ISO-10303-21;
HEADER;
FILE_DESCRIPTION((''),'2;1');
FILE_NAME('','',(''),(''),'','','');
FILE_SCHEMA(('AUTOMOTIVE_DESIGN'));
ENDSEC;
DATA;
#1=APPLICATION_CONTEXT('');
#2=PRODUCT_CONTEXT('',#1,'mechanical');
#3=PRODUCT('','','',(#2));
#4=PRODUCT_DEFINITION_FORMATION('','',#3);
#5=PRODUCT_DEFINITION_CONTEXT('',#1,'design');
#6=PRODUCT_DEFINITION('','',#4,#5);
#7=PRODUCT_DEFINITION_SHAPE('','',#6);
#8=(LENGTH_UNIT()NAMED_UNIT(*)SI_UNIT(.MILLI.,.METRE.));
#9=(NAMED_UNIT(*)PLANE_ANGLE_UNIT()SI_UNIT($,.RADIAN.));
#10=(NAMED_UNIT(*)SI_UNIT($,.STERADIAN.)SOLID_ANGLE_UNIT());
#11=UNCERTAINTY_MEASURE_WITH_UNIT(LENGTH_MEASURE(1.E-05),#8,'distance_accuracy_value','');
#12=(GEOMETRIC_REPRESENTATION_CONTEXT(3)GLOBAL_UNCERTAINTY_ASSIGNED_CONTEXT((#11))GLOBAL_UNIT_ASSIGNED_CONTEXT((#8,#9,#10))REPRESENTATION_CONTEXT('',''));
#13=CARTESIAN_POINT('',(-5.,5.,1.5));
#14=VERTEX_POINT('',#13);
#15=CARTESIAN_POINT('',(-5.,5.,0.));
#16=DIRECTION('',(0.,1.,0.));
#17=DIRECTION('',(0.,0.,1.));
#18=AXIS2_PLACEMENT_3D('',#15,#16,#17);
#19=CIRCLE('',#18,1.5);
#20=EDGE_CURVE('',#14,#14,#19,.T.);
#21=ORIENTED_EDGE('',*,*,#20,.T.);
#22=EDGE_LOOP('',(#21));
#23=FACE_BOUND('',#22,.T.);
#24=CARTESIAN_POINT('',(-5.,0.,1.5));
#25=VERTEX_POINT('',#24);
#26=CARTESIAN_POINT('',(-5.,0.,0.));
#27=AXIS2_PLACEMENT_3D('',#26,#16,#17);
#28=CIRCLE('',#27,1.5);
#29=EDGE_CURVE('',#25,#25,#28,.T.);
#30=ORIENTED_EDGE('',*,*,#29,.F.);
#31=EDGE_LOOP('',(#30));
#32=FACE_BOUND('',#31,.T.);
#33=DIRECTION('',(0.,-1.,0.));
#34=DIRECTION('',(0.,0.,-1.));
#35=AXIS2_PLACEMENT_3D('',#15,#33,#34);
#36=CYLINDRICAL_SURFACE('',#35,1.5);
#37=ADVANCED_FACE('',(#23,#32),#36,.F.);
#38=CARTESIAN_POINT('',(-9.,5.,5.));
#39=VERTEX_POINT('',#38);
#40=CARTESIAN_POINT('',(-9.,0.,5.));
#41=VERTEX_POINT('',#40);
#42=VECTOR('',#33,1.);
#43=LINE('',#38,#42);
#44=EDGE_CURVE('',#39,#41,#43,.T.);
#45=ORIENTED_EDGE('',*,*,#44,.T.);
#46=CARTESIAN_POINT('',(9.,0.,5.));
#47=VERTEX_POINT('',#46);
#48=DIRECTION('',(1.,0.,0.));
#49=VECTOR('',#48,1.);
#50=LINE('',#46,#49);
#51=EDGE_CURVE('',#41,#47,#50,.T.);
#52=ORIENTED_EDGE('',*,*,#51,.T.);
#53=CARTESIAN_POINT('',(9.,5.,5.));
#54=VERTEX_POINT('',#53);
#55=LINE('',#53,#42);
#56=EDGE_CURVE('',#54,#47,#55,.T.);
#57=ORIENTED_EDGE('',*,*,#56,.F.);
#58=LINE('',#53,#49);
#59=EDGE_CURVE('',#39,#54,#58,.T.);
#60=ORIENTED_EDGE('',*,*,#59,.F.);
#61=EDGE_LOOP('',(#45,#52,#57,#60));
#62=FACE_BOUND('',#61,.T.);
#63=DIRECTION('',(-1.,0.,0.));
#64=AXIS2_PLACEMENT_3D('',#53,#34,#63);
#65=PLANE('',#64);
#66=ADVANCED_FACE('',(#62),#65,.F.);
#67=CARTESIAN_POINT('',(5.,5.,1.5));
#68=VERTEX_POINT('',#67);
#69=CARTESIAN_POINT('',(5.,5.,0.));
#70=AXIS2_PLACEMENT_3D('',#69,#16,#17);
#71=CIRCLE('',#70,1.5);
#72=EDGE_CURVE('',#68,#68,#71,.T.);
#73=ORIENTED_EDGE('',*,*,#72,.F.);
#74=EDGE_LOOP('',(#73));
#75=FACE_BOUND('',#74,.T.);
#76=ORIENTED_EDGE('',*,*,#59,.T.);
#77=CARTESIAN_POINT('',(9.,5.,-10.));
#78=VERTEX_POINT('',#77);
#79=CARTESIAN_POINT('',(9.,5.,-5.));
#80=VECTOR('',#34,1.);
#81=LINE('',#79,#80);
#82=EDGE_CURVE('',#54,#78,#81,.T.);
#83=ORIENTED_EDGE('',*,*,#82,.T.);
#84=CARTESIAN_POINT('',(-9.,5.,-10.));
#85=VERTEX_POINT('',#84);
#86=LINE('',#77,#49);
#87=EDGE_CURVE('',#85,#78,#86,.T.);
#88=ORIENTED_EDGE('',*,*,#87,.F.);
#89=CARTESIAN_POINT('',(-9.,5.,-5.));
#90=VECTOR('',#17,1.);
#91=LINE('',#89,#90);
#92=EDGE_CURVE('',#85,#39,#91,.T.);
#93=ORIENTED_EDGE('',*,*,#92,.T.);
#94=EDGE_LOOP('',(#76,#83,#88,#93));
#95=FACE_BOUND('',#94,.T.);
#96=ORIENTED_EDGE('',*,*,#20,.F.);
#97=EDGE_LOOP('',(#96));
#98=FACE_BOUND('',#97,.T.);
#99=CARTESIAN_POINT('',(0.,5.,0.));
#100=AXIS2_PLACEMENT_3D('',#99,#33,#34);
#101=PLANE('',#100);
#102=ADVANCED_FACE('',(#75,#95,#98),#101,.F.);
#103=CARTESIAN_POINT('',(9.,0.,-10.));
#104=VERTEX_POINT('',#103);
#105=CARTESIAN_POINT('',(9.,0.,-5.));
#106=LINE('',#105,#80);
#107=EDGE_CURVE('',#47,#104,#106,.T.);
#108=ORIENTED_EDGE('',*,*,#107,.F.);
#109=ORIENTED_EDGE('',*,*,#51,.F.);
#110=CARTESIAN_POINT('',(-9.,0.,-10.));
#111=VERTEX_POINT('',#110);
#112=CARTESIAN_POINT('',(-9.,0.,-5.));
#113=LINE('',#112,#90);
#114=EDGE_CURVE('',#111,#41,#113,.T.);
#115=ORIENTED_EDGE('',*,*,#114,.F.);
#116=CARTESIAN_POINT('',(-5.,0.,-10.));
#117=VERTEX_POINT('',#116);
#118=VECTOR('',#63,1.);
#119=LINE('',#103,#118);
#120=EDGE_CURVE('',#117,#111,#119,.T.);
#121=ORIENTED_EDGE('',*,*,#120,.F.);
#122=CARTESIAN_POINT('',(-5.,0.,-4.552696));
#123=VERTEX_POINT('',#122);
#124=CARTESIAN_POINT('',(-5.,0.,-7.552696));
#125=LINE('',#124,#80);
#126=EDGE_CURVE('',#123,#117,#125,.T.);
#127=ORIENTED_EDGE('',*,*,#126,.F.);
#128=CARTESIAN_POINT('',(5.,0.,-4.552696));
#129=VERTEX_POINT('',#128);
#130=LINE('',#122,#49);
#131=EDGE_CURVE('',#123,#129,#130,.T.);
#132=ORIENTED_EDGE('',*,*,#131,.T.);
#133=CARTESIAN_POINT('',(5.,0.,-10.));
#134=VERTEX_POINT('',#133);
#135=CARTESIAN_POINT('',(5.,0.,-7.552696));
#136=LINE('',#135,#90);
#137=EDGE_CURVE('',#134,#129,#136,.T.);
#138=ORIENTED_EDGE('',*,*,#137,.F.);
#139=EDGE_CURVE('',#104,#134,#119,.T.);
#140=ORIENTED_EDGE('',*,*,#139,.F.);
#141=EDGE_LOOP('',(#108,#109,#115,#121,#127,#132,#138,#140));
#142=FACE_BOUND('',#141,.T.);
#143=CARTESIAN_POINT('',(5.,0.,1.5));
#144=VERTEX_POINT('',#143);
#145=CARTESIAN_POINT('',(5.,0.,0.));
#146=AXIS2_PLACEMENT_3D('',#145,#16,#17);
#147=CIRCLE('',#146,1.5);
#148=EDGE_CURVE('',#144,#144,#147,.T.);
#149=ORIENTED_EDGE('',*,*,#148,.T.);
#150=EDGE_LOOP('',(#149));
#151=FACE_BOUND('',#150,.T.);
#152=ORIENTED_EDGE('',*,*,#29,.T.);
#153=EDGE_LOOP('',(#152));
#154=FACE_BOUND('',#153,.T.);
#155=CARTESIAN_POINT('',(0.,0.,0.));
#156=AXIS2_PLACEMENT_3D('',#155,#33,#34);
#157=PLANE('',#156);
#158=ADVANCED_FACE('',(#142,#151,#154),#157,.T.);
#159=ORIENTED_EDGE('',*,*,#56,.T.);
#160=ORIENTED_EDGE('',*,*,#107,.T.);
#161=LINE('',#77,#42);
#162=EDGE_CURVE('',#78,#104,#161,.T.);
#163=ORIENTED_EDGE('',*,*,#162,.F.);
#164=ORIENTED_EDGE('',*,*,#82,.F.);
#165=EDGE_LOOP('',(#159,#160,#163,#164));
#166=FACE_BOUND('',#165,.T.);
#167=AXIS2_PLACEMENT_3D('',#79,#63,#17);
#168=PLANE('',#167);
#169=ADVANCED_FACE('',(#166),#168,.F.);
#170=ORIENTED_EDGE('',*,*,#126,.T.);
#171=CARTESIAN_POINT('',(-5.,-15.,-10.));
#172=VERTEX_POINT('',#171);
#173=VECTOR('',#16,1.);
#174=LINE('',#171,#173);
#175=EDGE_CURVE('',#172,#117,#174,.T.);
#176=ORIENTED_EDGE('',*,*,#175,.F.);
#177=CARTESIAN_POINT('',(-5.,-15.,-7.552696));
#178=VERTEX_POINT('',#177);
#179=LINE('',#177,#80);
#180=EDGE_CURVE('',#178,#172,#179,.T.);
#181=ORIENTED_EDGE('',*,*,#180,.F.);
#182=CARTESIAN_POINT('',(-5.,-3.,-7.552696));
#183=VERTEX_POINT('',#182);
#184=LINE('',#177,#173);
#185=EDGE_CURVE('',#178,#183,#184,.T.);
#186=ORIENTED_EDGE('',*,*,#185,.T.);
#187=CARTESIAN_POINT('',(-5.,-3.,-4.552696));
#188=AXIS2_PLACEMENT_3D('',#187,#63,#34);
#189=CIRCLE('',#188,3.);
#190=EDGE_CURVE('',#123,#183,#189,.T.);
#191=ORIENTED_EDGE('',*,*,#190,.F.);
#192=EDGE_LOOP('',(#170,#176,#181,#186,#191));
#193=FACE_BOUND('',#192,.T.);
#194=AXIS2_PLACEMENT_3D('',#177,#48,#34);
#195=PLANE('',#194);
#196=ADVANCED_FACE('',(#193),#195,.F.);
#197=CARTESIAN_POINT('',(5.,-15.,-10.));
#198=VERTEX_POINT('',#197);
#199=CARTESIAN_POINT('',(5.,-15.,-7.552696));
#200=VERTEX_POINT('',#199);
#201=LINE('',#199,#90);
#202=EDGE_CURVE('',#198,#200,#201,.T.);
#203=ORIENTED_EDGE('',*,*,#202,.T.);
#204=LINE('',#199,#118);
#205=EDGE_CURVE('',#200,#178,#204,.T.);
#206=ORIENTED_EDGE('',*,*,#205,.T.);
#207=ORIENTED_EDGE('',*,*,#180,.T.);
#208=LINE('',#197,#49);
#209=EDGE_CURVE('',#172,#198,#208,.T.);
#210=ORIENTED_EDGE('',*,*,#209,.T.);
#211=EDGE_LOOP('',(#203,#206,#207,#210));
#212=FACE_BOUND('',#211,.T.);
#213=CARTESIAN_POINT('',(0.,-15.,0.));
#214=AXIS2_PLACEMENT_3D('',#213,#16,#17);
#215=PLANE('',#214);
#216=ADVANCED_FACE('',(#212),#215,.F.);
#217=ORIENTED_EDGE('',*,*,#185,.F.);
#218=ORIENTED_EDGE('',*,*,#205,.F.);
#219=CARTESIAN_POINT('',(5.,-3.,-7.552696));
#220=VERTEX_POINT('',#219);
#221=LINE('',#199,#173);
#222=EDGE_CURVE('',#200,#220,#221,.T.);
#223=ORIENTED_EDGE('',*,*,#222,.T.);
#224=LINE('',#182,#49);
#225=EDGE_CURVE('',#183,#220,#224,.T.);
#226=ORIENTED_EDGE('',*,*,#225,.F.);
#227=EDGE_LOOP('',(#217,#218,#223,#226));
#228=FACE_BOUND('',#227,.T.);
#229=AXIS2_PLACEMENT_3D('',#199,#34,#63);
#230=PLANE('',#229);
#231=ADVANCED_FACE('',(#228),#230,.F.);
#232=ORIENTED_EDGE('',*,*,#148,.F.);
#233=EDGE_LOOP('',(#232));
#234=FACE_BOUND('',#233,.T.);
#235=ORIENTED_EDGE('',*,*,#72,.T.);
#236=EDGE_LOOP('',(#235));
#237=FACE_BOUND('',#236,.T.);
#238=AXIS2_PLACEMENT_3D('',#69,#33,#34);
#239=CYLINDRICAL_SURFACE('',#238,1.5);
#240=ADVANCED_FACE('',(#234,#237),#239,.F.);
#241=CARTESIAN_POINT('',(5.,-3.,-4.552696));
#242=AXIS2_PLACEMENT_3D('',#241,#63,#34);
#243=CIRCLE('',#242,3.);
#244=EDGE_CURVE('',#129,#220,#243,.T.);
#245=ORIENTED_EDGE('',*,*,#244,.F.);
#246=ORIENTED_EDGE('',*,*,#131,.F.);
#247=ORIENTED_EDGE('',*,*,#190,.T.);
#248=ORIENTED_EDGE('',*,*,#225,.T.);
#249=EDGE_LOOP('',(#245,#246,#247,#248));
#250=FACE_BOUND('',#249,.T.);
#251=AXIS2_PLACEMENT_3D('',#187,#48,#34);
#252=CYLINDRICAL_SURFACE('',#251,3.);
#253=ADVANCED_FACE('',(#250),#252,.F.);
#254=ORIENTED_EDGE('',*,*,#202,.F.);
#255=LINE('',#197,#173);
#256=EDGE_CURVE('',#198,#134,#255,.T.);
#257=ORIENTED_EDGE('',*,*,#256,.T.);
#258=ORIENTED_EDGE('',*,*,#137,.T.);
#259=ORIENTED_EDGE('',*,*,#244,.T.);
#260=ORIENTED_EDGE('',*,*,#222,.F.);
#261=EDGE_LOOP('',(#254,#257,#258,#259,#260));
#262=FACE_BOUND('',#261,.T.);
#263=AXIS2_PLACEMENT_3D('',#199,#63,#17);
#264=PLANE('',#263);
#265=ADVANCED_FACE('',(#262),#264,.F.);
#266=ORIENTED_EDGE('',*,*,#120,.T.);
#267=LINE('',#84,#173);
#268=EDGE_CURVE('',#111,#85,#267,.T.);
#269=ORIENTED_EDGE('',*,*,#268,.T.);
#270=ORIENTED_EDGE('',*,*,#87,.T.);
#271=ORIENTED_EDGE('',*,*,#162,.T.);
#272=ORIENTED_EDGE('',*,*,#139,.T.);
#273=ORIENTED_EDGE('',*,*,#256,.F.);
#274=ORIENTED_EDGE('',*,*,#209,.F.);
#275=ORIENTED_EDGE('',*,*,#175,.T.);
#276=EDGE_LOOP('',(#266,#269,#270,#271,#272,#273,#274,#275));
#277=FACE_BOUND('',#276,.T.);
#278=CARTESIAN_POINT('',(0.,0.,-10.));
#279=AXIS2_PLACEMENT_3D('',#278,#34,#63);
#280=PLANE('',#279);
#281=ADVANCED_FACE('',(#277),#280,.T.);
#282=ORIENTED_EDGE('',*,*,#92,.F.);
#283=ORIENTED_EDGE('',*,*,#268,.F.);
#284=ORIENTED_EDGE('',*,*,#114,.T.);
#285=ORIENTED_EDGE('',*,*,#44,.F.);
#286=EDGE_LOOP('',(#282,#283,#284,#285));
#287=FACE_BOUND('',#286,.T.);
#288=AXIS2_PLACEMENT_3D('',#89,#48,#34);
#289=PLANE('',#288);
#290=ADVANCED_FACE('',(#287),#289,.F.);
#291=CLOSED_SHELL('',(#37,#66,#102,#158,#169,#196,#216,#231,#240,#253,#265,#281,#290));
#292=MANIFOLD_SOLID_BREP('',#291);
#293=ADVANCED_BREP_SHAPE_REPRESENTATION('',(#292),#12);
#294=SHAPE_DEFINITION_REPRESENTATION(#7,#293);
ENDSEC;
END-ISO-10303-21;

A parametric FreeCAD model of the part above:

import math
import FreeCAD as App
import Part
import Sketcher

V = App.Vector


def add_polygon(sketch, points):
    """Adds a closed chain of lines whose ends are joined by coincident constraints."""
    first, n = sketch.GeometryCount, len(points)
    for a, b in zip(points, points[1:] + points[:1]):
        sketch.addGeometry(Part.LineSegment(App.Vector(*a, 0), App.Vector(*b, 0)), False)
    for i in range(n):
        sketch.addConstraint(Sketcher.Constraint("Coincident", first + i, 2, first + (i + 1) % n, 1))

doc = App.newDocument("Part")
body = doc.addObject("PartDesign::Body", "Body")

sketch1 = body.newObject("Sketcher::SketchObject", "Sketch")
sketch1.AttachmentSupport = (doc.getObject("XZ_Plane"), [""])
sketch1.MapMode = "FlatFace"
add_polygon(sketch1, [(-9, -5), (-9, 5), (9, 5), (9, -5)])
sketch1.addGeometry(Part.Circle(V(-5, 0, 0), V(0, 0, 1), 1.5), False)
sketch1.addGeometry(Part.Circle(V(5, 0, 0), V(0, 0, 1), 1.5), False)
sketch1.addConstraint([
    Sketcher.Constraint("Vertical", 0),
    Sketcher.Constraint("Horizontal", 1),
    Sketcher.Constraint("Vertical", 2),
    Sketcher.Constraint("Horizontal", 3),
    Sketcher.Constraint("Equal", 4, 5),
    Sketcher.Constraint("Symmetric", 4, 3, 5, 3, -1, 1),
    Sketcher.Constraint("Symmetric", 0, 2, 2, 2, -1, 1),
    Sketcher.Constraint("PointOnObject", 4, 3, -1),
    Sketcher.Constraint("Diameter", 4, 3.0),
    Sketcher.Constraint("DistanceX", 1, 1, 1, 2, 18.0),
    Sketcher.Constraint("DistanceY", 0, 1, 0, 2, 10.0),
    Sketcher.Constraint("DistanceX", 4, 3, -1, 1, 5.0),
])
pad1 = body.newObject("PartDesign::Pad", "Pad")
pad1.Profile = sketch1
pad1.Length = 5
pad1.Reversed = True

sketch2 = body.newObject("Sketcher::SketchObject", "Sketch001")
sketch2.AttachmentSupport = (doc.getObject("XY_Plane"), [""])
sketch2.MapMode = "FlatFace"
sketch2.AttachmentOffset = App.Placement(V(0, 0, -5), App.Rotation())
add_polygon(sketch2, [(9, 5), (9, 0), (-9, 0), (-9, 5)])
sketch2.addConstraint([
    Sketcher.Constraint("Vertical", 0),
    Sketcher.Constraint("Horizontal", 1),
    Sketcher.Constraint("Vertical", 2),
    Sketcher.Constraint("Horizontal", 3),
    Sketcher.Constraint("Symmetric", 0, 2, 1, 2, -1, 1),
    Sketcher.Constraint("DistanceX", 1, 2, 1, 1, 18.0),
    Sketcher.Constraint("DistanceY", 0, 2, 0, 1, 5.0),
])
pad2 = body.newObject("PartDesign::Pad", "Pad001")
pad2.Profile = sketch2
pad2.Length = 5
pad2.Reversed = True

sketch3 = body.newObject("Sketcher::SketchObject", "Sketch002")
sketch3.AttachmentSupport = (doc.getObject("XZ_Plane"), [""])
sketch3.MapMode = "FlatFace"
add_polygon(sketch3, [(-5, -7.6), (-5, -10), (5, -10), (5, -7.6)])
sketch3.addConstraint([
    Sketcher.Constraint("Vertical", 0),
    Sketcher.Constraint("Horizontal", 1),
    Sketcher.Constraint("Vertical", 2),
    Sketcher.Constraint("Horizontal", 3),
    Sketcher.Constraint("DistanceX", 1, 1, 1, 2, 10.0),
    Sketcher.Constraint("DistanceX", 0, 2, -1, 1, 5.0),
    Sketcher.Constraint("DistanceY", 0, 2, -1, 1, 10.0),
    Sketcher.Constraint("DistanceY", 0, 2, 0, 1, 2.447304),
])
pad3 = body.newObject("PartDesign::Pad", "Pad002")
pad3.Profile = sketch3
pad3.Length = 15

sketch4 = body.newObject("Sketcher::SketchObject", "Sketch003")
sketch4.AttachmentSupport = (doc.getObject("YZ_Plane"), [""])
sketch4.MapMode = "FlatFace"
sketch4.AttachmentOffset = App.Placement(V(0, 0, 5), App.Rotation())
sketch4.addGeometry([
    Part.LineSegment(V(0, -7.6, 0), V(0, -4.6, 0)),
    Part.ArcOfCircle(Part.Circle(V(-3, -4.6, 0), V(0, 0, 1), 3), math.radians(-90), math.radians(0)),
    Part.LineSegment(V(-3, -7.6, 0), V(0, -7.6, 0)),
], False)
sketch4.addConstraint([
    Sketcher.Constraint("Tangent", 0, 2, 1, 2),
    Sketcher.Constraint("Tangent", 1, 1, 2, 1),
    Sketcher.Constraint("Coincident", 2, 2, 0, 1),
    Sketcher.Constraint("Vertical", 0),
    Sketcher.Constraint("Horizontal", 2),
    Sketcher.Constraint("PointOnObject", 0, 2, -2),
    Sketcher.Constraint("Radius", 1, 3.0),
    Sketcher.Constraint("DistanceY", 1, 3, -1, 1, 4.552696),
])
pad4 = body.newObject("PartDesign::Pad", "Pad003")
pad4.Profile = sketch4
pad4.Length = 10
pad4.Reversed = True

doc.recompute()
